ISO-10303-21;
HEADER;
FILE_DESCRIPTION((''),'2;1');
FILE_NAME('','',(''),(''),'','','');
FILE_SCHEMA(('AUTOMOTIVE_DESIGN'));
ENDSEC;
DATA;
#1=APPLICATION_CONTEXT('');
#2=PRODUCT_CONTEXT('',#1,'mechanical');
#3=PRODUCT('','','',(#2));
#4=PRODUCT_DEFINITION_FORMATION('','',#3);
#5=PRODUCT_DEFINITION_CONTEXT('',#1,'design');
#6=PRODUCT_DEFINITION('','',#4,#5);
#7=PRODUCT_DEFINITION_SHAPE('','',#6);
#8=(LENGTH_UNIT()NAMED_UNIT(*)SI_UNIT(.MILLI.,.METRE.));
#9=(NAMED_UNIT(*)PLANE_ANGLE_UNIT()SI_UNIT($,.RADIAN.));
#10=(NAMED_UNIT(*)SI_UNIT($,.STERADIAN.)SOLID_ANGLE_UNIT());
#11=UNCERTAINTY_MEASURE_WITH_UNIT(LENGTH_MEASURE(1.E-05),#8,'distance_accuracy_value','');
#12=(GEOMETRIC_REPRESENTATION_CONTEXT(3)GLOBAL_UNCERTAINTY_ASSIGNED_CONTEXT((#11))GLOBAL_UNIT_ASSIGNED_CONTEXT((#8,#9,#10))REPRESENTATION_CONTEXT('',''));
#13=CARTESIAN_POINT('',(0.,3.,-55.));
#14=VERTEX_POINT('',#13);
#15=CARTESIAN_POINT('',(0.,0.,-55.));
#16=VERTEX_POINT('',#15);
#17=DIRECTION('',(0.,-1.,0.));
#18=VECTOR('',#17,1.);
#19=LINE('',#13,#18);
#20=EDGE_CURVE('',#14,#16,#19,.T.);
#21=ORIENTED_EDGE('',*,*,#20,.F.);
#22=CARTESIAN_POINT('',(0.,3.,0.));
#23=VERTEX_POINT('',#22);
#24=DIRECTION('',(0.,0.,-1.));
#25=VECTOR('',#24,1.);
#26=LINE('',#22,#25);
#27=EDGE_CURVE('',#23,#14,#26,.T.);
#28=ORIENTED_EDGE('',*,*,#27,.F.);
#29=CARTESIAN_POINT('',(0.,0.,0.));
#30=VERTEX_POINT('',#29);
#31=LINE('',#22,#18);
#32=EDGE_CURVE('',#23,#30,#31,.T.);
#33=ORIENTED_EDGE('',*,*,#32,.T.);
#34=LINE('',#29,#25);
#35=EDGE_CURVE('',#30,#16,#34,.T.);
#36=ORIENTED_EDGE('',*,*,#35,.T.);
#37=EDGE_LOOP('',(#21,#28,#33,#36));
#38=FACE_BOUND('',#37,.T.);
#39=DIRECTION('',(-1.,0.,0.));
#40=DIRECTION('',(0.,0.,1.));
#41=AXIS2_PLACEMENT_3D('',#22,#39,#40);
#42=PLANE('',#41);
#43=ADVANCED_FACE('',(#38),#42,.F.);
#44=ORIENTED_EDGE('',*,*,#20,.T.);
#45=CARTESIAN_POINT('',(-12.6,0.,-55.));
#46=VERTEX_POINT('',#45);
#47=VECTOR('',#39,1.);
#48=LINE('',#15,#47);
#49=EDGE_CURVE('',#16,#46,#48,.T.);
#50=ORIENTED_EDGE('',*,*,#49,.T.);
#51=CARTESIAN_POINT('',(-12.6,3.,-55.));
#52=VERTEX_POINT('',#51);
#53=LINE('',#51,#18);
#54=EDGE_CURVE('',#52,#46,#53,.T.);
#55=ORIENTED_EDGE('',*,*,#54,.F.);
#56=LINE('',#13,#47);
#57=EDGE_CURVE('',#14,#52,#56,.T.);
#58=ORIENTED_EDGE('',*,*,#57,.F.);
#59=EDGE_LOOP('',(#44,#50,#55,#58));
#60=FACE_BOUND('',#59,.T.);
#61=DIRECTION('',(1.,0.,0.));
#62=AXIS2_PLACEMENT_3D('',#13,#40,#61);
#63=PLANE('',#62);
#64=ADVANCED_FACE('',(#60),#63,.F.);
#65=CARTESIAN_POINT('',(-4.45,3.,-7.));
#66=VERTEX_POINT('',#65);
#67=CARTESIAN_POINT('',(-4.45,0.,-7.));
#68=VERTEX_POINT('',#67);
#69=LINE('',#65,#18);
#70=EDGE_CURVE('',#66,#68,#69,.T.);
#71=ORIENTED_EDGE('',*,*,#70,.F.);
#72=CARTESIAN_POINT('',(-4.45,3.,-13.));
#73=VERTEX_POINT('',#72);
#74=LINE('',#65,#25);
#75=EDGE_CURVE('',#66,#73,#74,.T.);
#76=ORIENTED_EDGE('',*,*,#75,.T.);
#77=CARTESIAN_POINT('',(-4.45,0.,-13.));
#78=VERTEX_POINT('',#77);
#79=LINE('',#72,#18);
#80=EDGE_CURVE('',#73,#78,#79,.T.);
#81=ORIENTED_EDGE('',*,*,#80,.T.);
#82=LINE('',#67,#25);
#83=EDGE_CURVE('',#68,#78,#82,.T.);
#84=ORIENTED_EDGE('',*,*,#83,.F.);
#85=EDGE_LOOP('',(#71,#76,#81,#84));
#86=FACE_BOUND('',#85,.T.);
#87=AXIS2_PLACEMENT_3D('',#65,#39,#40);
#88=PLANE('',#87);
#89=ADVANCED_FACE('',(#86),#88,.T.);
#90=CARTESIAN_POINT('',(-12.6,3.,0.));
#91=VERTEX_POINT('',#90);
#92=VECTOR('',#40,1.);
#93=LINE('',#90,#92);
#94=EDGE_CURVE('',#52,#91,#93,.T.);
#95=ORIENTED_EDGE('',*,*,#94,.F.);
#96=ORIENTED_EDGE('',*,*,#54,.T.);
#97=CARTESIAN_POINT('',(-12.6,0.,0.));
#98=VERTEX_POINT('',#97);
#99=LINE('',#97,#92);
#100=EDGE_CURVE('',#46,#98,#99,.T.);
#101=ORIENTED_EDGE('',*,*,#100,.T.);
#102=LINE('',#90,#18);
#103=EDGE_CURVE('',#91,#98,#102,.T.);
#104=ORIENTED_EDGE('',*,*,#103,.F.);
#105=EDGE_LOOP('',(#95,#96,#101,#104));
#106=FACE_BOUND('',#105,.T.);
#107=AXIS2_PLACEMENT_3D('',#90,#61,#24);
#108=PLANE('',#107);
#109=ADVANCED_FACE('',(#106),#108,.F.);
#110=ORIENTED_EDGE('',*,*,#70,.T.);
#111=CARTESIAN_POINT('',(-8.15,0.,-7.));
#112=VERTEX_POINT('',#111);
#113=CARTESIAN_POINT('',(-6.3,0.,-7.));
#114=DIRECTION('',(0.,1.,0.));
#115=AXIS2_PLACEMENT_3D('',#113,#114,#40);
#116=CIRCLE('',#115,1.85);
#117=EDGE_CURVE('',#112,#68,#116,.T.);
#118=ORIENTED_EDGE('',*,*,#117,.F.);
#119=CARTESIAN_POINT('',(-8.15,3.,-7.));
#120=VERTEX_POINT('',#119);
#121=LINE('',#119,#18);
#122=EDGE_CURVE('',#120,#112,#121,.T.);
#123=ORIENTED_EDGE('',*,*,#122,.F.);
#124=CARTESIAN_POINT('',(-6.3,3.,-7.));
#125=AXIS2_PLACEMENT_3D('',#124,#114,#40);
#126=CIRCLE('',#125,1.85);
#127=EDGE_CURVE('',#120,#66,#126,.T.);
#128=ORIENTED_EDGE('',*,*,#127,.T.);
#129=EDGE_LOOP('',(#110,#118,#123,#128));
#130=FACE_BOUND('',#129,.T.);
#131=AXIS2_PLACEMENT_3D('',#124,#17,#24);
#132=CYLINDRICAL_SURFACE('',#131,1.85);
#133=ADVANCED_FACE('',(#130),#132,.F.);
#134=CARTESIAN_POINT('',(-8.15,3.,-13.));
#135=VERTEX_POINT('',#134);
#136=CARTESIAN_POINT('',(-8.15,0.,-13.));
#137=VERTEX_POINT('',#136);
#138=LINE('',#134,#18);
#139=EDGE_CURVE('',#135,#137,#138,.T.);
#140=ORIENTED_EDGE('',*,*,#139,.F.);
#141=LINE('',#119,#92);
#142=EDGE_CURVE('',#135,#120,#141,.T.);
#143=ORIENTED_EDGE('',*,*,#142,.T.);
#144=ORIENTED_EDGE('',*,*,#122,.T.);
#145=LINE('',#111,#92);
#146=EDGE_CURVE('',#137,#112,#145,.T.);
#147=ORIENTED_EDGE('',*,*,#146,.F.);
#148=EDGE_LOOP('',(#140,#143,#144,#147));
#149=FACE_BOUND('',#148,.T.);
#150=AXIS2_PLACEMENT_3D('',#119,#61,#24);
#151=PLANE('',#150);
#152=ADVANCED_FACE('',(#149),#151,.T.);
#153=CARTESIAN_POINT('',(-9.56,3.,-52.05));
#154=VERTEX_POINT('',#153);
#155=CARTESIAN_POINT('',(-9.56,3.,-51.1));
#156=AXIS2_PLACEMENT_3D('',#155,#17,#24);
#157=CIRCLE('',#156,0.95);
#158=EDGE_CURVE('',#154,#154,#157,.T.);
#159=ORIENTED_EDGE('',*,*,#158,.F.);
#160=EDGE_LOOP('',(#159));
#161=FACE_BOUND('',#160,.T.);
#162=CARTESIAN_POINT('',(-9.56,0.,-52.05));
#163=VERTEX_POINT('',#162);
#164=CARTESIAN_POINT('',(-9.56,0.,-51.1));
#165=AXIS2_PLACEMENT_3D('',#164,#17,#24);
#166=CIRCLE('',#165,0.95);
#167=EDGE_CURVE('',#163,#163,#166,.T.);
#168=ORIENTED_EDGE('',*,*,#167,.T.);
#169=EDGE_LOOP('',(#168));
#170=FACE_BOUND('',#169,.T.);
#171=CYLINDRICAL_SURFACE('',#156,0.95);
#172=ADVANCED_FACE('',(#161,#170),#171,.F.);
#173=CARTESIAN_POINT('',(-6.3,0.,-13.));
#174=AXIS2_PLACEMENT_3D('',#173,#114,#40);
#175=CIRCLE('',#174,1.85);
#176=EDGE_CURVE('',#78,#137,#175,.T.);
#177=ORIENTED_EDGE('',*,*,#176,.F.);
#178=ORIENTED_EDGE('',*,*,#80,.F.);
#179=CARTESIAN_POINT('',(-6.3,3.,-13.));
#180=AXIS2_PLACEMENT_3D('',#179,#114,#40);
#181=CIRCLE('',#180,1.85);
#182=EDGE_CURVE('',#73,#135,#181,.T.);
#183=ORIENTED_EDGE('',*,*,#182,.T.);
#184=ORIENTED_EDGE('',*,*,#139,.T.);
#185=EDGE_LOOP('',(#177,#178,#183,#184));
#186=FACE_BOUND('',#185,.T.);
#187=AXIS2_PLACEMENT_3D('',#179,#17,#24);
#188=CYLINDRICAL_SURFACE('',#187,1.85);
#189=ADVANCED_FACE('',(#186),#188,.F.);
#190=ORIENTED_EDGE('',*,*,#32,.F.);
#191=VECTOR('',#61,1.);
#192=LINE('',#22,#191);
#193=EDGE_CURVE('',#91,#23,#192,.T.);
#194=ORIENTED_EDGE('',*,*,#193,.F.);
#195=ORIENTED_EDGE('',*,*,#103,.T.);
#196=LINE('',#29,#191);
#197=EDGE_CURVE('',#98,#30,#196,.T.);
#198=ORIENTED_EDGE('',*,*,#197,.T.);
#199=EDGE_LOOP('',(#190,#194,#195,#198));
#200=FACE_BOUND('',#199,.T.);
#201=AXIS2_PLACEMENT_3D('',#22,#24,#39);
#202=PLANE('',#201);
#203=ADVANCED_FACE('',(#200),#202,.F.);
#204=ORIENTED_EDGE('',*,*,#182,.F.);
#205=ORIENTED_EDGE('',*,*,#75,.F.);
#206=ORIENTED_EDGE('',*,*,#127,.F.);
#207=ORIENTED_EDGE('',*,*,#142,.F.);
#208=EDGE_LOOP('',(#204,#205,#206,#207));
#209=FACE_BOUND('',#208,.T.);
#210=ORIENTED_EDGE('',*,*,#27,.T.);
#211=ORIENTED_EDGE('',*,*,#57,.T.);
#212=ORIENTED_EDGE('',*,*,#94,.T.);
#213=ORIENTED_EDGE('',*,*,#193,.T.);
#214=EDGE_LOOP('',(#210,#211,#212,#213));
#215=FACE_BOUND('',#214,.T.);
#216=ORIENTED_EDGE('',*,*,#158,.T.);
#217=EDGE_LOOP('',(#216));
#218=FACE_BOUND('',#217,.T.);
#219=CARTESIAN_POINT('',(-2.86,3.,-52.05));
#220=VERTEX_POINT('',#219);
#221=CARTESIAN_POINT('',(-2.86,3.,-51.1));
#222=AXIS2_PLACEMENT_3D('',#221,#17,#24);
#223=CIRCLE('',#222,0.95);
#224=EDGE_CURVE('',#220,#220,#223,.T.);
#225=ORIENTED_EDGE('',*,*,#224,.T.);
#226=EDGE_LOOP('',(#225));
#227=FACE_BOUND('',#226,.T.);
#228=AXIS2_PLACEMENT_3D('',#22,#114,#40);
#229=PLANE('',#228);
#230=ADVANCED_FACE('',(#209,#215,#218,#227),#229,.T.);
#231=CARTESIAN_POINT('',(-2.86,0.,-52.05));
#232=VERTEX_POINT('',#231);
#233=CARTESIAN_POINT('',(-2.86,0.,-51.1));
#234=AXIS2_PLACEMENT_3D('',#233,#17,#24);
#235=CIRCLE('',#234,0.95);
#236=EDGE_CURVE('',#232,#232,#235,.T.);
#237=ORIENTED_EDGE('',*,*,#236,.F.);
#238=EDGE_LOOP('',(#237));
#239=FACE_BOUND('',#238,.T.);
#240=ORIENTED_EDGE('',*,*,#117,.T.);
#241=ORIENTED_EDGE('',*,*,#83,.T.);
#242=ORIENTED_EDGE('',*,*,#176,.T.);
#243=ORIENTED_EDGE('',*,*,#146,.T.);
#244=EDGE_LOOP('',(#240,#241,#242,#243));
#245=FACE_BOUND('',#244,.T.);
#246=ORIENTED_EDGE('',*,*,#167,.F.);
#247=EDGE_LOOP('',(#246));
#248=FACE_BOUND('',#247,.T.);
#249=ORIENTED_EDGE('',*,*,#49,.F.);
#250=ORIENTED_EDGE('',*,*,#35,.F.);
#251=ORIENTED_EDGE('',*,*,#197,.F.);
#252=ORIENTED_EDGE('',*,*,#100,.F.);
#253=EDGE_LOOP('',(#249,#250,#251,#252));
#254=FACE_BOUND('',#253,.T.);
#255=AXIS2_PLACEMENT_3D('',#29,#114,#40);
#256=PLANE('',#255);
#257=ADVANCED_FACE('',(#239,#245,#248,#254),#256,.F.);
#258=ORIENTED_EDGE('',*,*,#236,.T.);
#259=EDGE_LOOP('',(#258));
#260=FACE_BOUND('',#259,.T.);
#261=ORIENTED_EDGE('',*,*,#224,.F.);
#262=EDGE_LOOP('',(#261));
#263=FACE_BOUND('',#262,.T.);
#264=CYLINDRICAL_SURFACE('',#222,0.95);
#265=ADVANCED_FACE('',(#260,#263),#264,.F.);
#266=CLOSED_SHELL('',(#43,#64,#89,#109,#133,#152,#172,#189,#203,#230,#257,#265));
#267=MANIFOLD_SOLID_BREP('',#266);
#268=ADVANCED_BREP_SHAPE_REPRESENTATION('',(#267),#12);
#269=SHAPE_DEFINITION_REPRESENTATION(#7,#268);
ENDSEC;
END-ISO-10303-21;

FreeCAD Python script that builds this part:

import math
import FreeCAD as App
import Part
import Sketcher
from FreeCAD import Vector
Q = App.Units.Quantity


def add_polygon(sketch, points):
    """Adds a closed chain of lines whose ends are joined by coincident constraints."""
    first, n = sketch.GeometryCount, len(points)
    for a, b in zip(points, points[1:] + points[:1]):
        sketch.addGeometry(Part.LineSegment(App.Vector(*a, 0), App.Vector(*b, 0)), False)
    for i in range(n):
        sketch.addConstraint(Sketcher.Constraint("Coincident", first + i, 2, first + (i + 1) % n, 1))

doc = App.newDocument("Part")
params = doc.addObject("Spreadsheet::Sheet", "Params")
for row, (alias, value) in enumerate([
    ("sketch1_height", "55 mm"),
    ("sketch1_height2", "6 mm"),
    ("sketch1_radius", "1.85 mm"),
    ("sketch1_width", "12.6 mm"),
    ("pad1_length", "3 mm"),
    ("sketch2_diameter", "1.9 mm"),
], start=1):
    params.set(f"A{row}", alias)
    params.set(f"B{row}", "=" + value)
    params.setAlias(f"B{row}", alias)

body = doc.addObject("PartDesign::Body", "Body")

# Sketch on XZ plane
sketch1 = body.newObject("Sketcher::SketchObject", "Sketch")
sketch1.AttachmentSupport = (doc.getObject("XZ_Plane"), [""])
sketch1.MapMode = "FlatFace"
add_polygon(sketch1, [(-12.6, -55), (-12.6, 0), (0, 0), (0, -55)])  # lines 0-3
sketch1.addGeometry(Part.ArcOfCircle(Part.Circle(Vector(-6.3, -7, 0), Vector(0, 0, 1), 1.9), math.radians(0), math.radians(180)), False)  # 4
sketch1.addGeometry(Part.LineSegment(Vector(-8.2, -7, 0), Vector(-8.2, -13, 0)), False)  # 5
sketch1.addGeometry(Part.ArcOfCircle(Part.Circle(Vector(-6.3, -13, 0), Vector(0, 0, 1), 1.9), math.radians(180), math.radians(360)), False)  # 6
sketch1.addGeometry(Part.LineSegment(Vector(-4.5, -13, 0), Vector(-4.5, -7, 0)), False)  # 7
sketch1.addConstraint([
    Sketcher.Constraint("Tangent", 4, 2, 5, 1),
    Sketcher.Constraint("Tangent", 5, 2, 6, 1),
    Sketcher.Constraint("Tangent", 6, 2, 7, 1),
    Sketcher.Constraint("Tangent", 7, 2, 4, 1),
    Sketcher.Constraint("Vertical", 0),
    Sketcher.Constraint("Horizontal", 1),
    Sketcher.Constraint("Vertical", 2),
    Sketcher.Constraint("Horizontal", 3),
    Sketcher.Constraint("Vertical", 5),
    Sketcher.Constraint("Vertical", 7),
    Sketcher.Constraint("Coincident", 1, 2, -1, 1),
    Sketcher.Constraint("DistanceY", 0, 1, 0, 2, Q("55 mm")),
    Sketcher.Constraint("DistanceY", 5, 2, 5, 1, Q("6 mm")),
    Sketcher.Constraint("Radius", 4, Q("1.85 mm")),
    Sketcher.Constraint("DistanceX", 1, 1, 1, 2, Q("12.6 mm")),
    Sketcher.Constraint("DistanceY", 4, 3, -1, 1, Q("7 mm")),
    Sketcher.Constraint("DistanceX", 4, 3, -1, 1, Q("6.3 mm")),
])
sketch1.setExpression("Constraints[15]", "Params.sketch1_height")
sketch1.setExpression("Constraints[16]", "Params.sketch1_height2")
sketch1.setExpression("Constraints[17]", "Params.sketch1_radius")
sketch1.setExpression("Constraints[18]", "Params.sketch1_width")
pad1 = body.newObject("PartDesign::Pad", "Pad")
pad1.Profile = sketch1
pad1.setExpression("Length", "Params.pad1_length")
pad1.Reversed = True

# Sketch on XZ plane
sketch2 = body.newObject("Sketcher::SketchObject", "Sketch001")
sketch2.AttachmentSupport = (doc.getObject("XZ_Plane"), [""])
sketch2.MapMode = "FlatFace"
sketch2.addGeometry([
    Part.Circle(Vector(-2.9, -51.1, 0), Vector(0, 0, 1), 0.9),
    Part.Circle(Vector(-9.6, -51.1, 0), Vector(0, 0, 1), 0.9),
], False)
sketch2.addConstraint([
    Sketcher.Constraint("Equal", 0, 1),
    Sketcher.Constraint("Horizontal", 0, 3, 1, 3),
    Sketcher.Constraint("Diameter", 0, Q("1.9 mm")),
    Sketcher.Constraint("DistanceY", 0, 3, -1, 1, Q("51.1 mm")),
    Sketcher.Constraint("DistanceX", 1, 3, 0, 3, Q("6.7 mm")),
    Sketcher.Constraint("DistanceX", 0, 3, -1, 1, Q("2.86 mm")),
])
sketch2.setExpression("Constraints[2]", "Params.sketch2_diameter")
pocket1 = body.newObject("PartDesign::Pocket", "Pocket")
pocket1.Profile = sketch2
pocket1.Type = "ThroughAll"

doc.recompute()
